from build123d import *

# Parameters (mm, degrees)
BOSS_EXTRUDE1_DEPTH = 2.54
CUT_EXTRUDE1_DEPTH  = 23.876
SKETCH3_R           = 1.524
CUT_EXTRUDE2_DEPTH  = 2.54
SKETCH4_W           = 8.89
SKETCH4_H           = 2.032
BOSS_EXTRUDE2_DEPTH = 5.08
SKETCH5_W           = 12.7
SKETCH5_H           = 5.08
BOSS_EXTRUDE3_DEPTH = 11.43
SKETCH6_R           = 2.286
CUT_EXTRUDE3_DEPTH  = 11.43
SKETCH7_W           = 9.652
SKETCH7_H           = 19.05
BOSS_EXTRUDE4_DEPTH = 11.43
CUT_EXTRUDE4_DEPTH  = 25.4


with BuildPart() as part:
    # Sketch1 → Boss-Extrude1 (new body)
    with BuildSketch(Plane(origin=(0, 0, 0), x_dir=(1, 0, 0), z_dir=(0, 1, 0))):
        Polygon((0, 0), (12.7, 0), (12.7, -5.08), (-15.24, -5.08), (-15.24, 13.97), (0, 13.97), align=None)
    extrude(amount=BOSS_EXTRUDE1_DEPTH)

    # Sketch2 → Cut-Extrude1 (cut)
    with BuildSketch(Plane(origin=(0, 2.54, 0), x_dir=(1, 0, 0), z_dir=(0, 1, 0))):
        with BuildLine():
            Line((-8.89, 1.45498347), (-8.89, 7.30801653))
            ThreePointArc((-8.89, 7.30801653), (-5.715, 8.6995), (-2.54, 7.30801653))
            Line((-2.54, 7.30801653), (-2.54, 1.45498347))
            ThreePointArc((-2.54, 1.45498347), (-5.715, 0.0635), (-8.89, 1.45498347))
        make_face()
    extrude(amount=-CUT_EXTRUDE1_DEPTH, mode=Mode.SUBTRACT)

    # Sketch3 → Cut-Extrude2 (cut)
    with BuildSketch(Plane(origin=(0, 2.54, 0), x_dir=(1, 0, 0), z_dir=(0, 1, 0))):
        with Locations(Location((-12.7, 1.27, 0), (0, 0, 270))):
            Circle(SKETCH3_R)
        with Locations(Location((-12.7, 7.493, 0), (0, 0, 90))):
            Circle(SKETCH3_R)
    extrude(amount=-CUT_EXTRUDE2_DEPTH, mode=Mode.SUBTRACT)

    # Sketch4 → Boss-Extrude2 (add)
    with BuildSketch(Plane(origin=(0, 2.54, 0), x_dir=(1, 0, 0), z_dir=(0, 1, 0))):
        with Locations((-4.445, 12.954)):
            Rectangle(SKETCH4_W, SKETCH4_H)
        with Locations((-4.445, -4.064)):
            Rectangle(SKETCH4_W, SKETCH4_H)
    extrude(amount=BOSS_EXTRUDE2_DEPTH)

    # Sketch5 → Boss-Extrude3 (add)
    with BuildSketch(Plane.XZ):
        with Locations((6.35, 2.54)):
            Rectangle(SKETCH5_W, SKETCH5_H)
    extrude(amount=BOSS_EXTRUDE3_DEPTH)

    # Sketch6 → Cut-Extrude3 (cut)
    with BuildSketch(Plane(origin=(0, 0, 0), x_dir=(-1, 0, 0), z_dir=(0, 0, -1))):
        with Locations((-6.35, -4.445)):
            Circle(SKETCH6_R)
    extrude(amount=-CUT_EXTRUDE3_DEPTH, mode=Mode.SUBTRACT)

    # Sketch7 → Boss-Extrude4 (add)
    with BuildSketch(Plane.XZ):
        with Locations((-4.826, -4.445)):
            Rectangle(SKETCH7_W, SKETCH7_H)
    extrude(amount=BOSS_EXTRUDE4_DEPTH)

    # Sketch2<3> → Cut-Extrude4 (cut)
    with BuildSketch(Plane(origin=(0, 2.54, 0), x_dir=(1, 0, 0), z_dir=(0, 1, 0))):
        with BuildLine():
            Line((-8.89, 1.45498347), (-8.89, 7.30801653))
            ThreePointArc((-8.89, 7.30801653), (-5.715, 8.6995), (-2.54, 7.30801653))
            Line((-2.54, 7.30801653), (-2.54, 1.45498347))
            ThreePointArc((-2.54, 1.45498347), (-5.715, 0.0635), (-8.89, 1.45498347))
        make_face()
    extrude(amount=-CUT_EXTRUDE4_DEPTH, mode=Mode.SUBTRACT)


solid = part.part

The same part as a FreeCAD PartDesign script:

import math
import FreeCAD as App
import Part
import Sketcher

V = App.Vector
Q = App.Units.Quantity


def add_polygon(sketch, points):
    """Adds a closed chain of lines whose ends are joined by coincident constraints."""
    first, n = sketch.GeometryCount, len(points)
    for a, b in zip(points, points[1:] + points[:1]):
        sketch.addGeometry(Part.LineSegment(App.Vector(*a, 0), App.Vector(*b, 0)), False)
    for i in range(n):
        sketch.addConstraint(Sketcher.Constraint("Coincident", first + i, 2, first + (i + 1) % n, 1))

doc = App.newDocument("Part")
params = doc.addObject("Spreadsheet::Sheet", "Params")
for row, (alias, value) in enumerate([
    ("sketch1_width", "0.5 in"),
    ("sketch1_width2", "0.6 in"),
    ("sketch1_height", "0.2 in"),
    ("sketch1_height2", "0.55 in"),
    ("pad1_length", "0.1 in"),
    ("sketch2_radius", "0.17 in"),
    ("pocket1_length", "0.94 in"),
    ("sketch3_diameter", "0.12 in"),
    ("pocket2_length", "0.1 in"),
    ("sketch4_width", "0.35 in"),
    ("sketch4_height", "0.08 in"),
    ("pad2_length", "0.2 in"),
    ("sketch5_width", "0.5 in"),
    ("sketch5_height", "0.2 in"),
    ("pad3_length", "0.45 in"),
    ("sketch6_diameter", "0.18 in"),
    ("pocket3_length", "0.45 in"),
    ("sketch7_width", "0.38 in"),
    ("sketch7_height", "0.75 in"),
    ("pad4_length", "0.45 in"),
    ("sketch8_radius", "0.17 in"),
    ("pocket4_length", "1 in"),
], start=1):
    params.set(f"A{row}", alias)
    params.set(f"B{row}", "=" + value)
    params.setAlias(f"B{row}", alias)

body = doc.addObject("PartDesign::Body", "Body")

# Sketch on XZ plane
sketch1 = body.newObject("Sketcher::SketchObject", "Sketch")
sketch1.AttachmentSupport = (doc.getObject("XZ_Plane"), [""])
sketch1.MapMode = "FlatFace"
add_polygon(sketch1, [(12.7, 0), (0, 0), (0, -13.97), (-15.24, -13.97), (-15.24, 5.08), (12.7, 5.08)])  # lines 0-5
sketch1.addConstraint([
    Sketcher.Constraint("Horizontal", 0),
    Sketcher.Constraint("Vertical", 1),
    Sketcher.Constraint("Horizontal", 2),
    Sketcher.Constraint("Vertical", 3),
    Sketcher.Constraint("Horizontal", 4),
    Sketcher.Constraint("Vertical", 5),
    Sketcher.Constraint("Coincident", 0, 2, -1, 1),
    Sketcher.Constraint("DistanceX", 0, 2, 0, 1, Q("0.5 in")),
    Sketcher.Constraint("DistanceX", 2, 2, 2, 1, Q("0.6 in")),
    Sketcher.Constraint("DistanceY", 5, 2, 5, 1, Q("0.2 in")),
    Sketcher.Constraint("DistanceY", 1, 2, 1, 1, Q("0.55 in")),
])
sketch1.setExpression("Constraints[13]", "Params.sketch1_width")
sketch1.setExpression("Constraints[14]", "Params.sketch1_width2")
sketch1.setExpression("Constraints[15]", "Params.sketch1_height")
sketch1.setExpression("Constraints[16]", "Params.sketch1_height2")
pad1 = body.newObject("PartDesign::Pad", "Pad")
pad1.Profile = sketch1
pad1.setExpression("Length", "Params.pad1_length")
pad1.Reversed = True

# Sketch on XZ plane
sketch2 = body.newObject("Sketcher::SketchObject", "Sketch001")
sketch2.AttachmentSupport = (doc.getObject("XZ_Plane"), [""])
sketch2.MapMode = "FlatFace"
sketch2.AttachmentOffset = App.Placement(V(0, 0, -0.1 * 25.4), App.Rotation())
sketch2.addGeometry([
    Part.LineSegment(V(-8.89, -7.308017, 0), V(-8.89, -1.454983, 0)),
    Part.ArcOfCircle(Part.Circle(V(-5.715, -4.3815, 0), V(0, 0, 1), 4.318), math.radians(42.667925), math.radians(137.332075)),
    Part.LineSegment(V(-2.54, -1.454983, 0), V(-2.54, -7.308017, 0)),
    Part.ArcOfCircle(Part.Circle(V(-5.715, -4.3815, 0), V(0, 0, 1), 4.318), math.radians(-137.332075), math.radians(-42.667925)),
], False)
sketch2.addConstraint([
    Sketcher.Constraint("Coincident", 0, 2, 1, 2),
    Sketcher.Constraint("Coincident", 1, 1, 2, 1),
    Sketcher.Constraint("Coincident", 2, 2, 3, 2),
    Sketcher.Constraint("Coincident", 3, 1, 0, 1),
    Sketcher.Constraint("Vertical", 0),
    Sketcher.Constraint("Vertical", 2),
    Sketcher.Constraint("Coincident", 3, 3, 1, 3),
    Sketcher.Constraint("Equal", 1, 3),
    Sketcher.Constraint("Horizontal", 0, 2, 1, 1),
    Sketcher.Constraint("Radius", 1, Q("0.17 in")),
    Sketcher.Constraint("DistanceX", 1, 1, -1, 1, Q("0.1 in")),
    Sketcher.Constraint("DistanceX", 0, 2, -1, 1, Q("0.35 in")),
    Sketcher.Constraint("DistanceY", 1, 3, -1, 1, Q("0.1725 in")),
])
sketch2.setExpression("Constraints[9]", "Params.sketch2_radius")
pocket1 = body.newObject("PartDesign::Pocket", "Pocket")
pocket1.Profile = sketch2
pocket1.setExpression("Length", "Params.pocket1_length")
pocket1.Reversed = True

# Sketch on XZ plane
sketch3 = body.newObject("Sketcher::SketchObject", "Sketch002")
sketch3.AttachmentSupport = (doc.getObject("XZ_Plane"), [""])
sketch3.MapMode = "FlatFace"
sketch3.AttachmentOffset = App.Placement(V(0, 0, -0.1 * 25.4), App.Rotation())
sketch3.addGeometry([
    Part.Circle(V(-12.7, -1.27, 0), V(0, 0, 1), 1.524),
    Part.Circle(V(-12.7, -7.493, 0), V(0, 0, 1), 1.524),
], False)
sketch3.addConstraint([
    Sketcher.Constraint("Equal", 0, 1),
    Sketcher.Constraint("Vertical", 0, 3, 1, 3),
    Sketcher.Constraint("Diameter", 0, Q("0.12 in")),
    Sketcher.Constraint("DistanceX", 0, 3, -1, 1, Q("0.5 in")),
    Sketcher.Constraint("DistanceY", 0, 3, -1, 1, Q("0.05 in")),
    Sketcher.Constraint("DistanceY", 1, 3, -1, 1, Q("0.295 in")),
])
sketch3.setExpression("Constraints[2]", "Params.sketch3_diameter")
pocket2 = body.newObject("PartDesign::Pocket", "Pocket001")
pocket2.Profile = sketch3
pocket2.setExpression("Length", "Params.pocket2_length")
pocket2.Reversed = True

# Sketch on XZ plane
sketch4 = body.newObject("Sketcher::SketchObject", "Sketch003")
sketch4.AttachmentSupport = (doc.getObject("XZ_Plane"), [""])
sketch4.MapMode = "FlatFace"
sketch4.AttachmentOffset = App.Placement(V(0, 0, -0.1 * 25.4), App.Rotation())
add_polygon(sketch4, [(-8.89, -13.97), (-8.89, -11.938), (0, -11.938), (0, -13.97)])  # lines 0-3
add_polygon(sketch4, [(-8.89, 3.048), (-8.89, 5.08), (0, 5.08), (0, 3.048)])  # lines 4-7
sketch4.addConstraint([
    Sketcher.Constraint("Vertical", 0),
    Sketcher.Constraint("Horizontal", 1),
    Sketcher.Constraint("Vertical", 2),
    Sketcher.Constraint("Horizontal", 3),
    Sketcher.Constraint("Vertical", 4),
    Sketcher.Constraint("Horizontal", 5),
    Sketcher.Constraint("Vertical", 6),
    Sketcher.Constraint("Horizontal", 7),
    Sketcher.Constraint("PointOnObject", 1, 2, -2),
    Sketcher.Constraint("PointOnObject", 5, 2, -2),
    Sketcher.Constraint("Vertical", 3, 2, 4, 2),
    Sketcher.Constraint("Equal", 2, 4),
    Sketcher.Constraint("DistanceX", 1, 1, 1, 2, Q("0.35 in")),
    Sketcher.Constraint("DistanceY", 0, 1, 0, 2, Q("0.08 in")),
    Sketcher.Constraint("DistanceY", -1, 1, 4, 2, Q("0.2 in")),
    Sketcher.Constraint("DistanceY", 0, 2, -1, 1, Q("0.47 in")),
])
sketch4.setExpression("Constraints[20]", "Params.sketch4_width")
sketch4.setExpression("Constraints[21]", "Params.sketch4_height")
pad2 = body.newObject("PartDesign::Pad", "Pad001")
pad2.Profile = sketch4
pad2.setExpression("Length", "Params.pad2_length")
pad2.Reversed = True

# Sketch on XZ plane
sketch5 = body.newObject("Sketcher::SketchObject", "Sketch004")
sketch5.AttachmentSupport = (doc.getObject("XZ_Plane"), [""])
sketch5.MapMode = "FlatFace"
add_polygon(sketch5, [(0, 5.08), (0, 0), (12.7, 0), (12.7, 5.08)])  # lines 0-3
sketch5.addConstraint([
    Sketcher.Constraint("Vertical", 0),
    Sketcher.Constraint("Horizontal", 1),
    Sketcher.Constraint("Vertical", 2),
    Sketcher.Constraint("Horizontal", 3),
    Sketcher.Constraint("Coincident", 0, 2, -1, 1),
    Sketcher.Constraint("DistanceX", 1, 1, 1, 2, Q("0.5 in")),
    Sketcher.Constraint("DistanceY", 0, 2, 0, 1, Q("0.2 in")),
])
sketch5.setExpression("Constraints[9]", "Params.sketch5_width")
sketch5.setExpression("Constraints[10]", "Params.sketch5_height")
pad3 = body.newObject("PartDesign::Pad", "Pad002")
pad3.Profile = sketch5
pad3.setExpression("Length", "Params.pad3_length")

# Sketch on XY plane
sketch6 = body.newObject("Sketcher::SketchObject", "Sketch005")
sketch6.AttachmentSupport = (doc.getObject("XY_Plane"), [""])
sketch6.MapMode = "FlatFace"
sketch6.addGeometry(Part.Circle(V(6.35, -4.445, 0), V(0, 0, 1), 2.286), False)
sketch6.addConstraint([
    Sketcher.Constraint("Diameter", 0, Q("0.18 in")),
    Sketcher.Constraint("DistanceX", -1, 1, 0, 3, Q("0.25 in")),
    Sketcher.Constraint("DistanceY", 0, 3, -1, 1, Q("0.175 in")),
])
sketch6.setExpression("Constraints[0]", "Params.sketch6_diameter")
pocket3 = body.newObject("PartDesign::Pocket", "Pocket002")
pocket3.Profile = sketch6
pocket3.setExpression("Length", "Params.pocket3_length")
pocket3.Reversed = True

# Sketch on XZ plane
sketch7 = body.newObject("Sketcher::SketchObject", "Sketch006")
sketch7.AttachmentSupport = (doc.getObject("XZ_Plane"), [""])
sketch7.MapMode = "FlatFace"
add_polygon(sketch7, [(-9.652, 5.08), (-9.652, -13.97), (0, -13.97), (0, 5.08)])  # lines 0-3
sketch7.addConstraint([
    Sketcher.Constraint("Vertical", 0),
    Sketcher.Constraint("Horizontal", 1),
    Sketcher.Constraint("Vertical", 2),
    Sketcher.Constraint("Horizontal", 3),
    Sketcher.Constraint("PointOnObject", 1, 2, -2),
    Sketcher.Constraint("DistanceX", 1, 1, 1, 2, Q("0.38 in")),
    Sketcher.Constraint("DistanceY", 0, 2, 0, 1, Q("0.75 in")),
    Sketcher.Constraint("DistanceY", -1, 1, 2, 2, Q("0.2 in")),
])
sketch7.setExpression("Constraints[9]", "Params.sketch7_width")
sketch7.setExpression("Constraints[10]", "Params.sketch7_height")
pad4 = body.newObject("PartDesign::Pad", "Pad003")
pad4.Profile = sketch7
pad4.setExpression("Length", "Params.pad4_length")

# Sketch on XZ plane
sketch8 = body.newObject("Sketcher::SketchObject", "Sketch007")
sketch8.AttachmentSupport = (doc.getObject("XZ_Plane"), [""])
sketch8.MapMode = "FlatFace"
sketch8.AttachmentOffset = App.Placement(V(0, 0, -0.1 * 25.4), App.Rotation())
sketch8.addGeometry([
    Part.LineSegment(V(-8.89, -7.308017, 0), V(-8.89, -1.454983, 0)),
    Part.ArcOfCircle(Part.Circle(V(-5.715, -4.3815, 0), V(0, 0, 1), 4.318), math.radians(42.667925), math.radians(137.332075)),
    Part.LineSegment(V(-2.54, -1.454983, 0), V(-2.54, -7.308017, 0)),
    Part.ArcOfCircle(Part.Circle(V(-5.715, -4.3815, 0), V(0, 0, 1), 4.318), math.radians(-137.332075), math.radians(-42.667925)),
], False)
sketch8.addConstraint([
    Sketcher.Constraint("Coincident", 0, 2, 1, 2),
    Sketcher.Constraint("Coincident", 1, 1, 2, 1),
    Sketcher.Constraint("Coincident", 2, 2, 3, 2),
    Sketcher.Constraint("Coincident", 3, 1, 0, 1),
    Sketcher.Constraint("Vertical", 0),
    Sketcher.Constraint("Vertical", 2),
    Sketcher.Constraint("Coincident", 3, 3, 1, 3),
    Sketcher.Constraint("Equal", 1, 3),
    Sketcher.Constraint("Horizontal", 0, 2, 1, 1),
    Sketcher.Constraint("Radius", 1, Q("0.17 in")),
    Sketcher.Constraint("DistanceX", 1, 1, -1, 1, Q("0.1 in")),
    Sketcher.Constraint("DistanceX", 0, 2, -1, 1, Q("0.35 in")),
    Sketcher.Constraint("DistanceY", 1, 3, -1, 1, Q("0.1725 in")),
])
sketch8.setExpression("Constraints[9]", "Params.sketch8_radius")
pocket4 = body.newObject("PartDesign::Pocket", "Pocket003")
pocket4.Profile = sketch8
pocket4.setExpression("Length", "Params.pocket4_length")
pocket4.Reversed = True

doc.recompute()
